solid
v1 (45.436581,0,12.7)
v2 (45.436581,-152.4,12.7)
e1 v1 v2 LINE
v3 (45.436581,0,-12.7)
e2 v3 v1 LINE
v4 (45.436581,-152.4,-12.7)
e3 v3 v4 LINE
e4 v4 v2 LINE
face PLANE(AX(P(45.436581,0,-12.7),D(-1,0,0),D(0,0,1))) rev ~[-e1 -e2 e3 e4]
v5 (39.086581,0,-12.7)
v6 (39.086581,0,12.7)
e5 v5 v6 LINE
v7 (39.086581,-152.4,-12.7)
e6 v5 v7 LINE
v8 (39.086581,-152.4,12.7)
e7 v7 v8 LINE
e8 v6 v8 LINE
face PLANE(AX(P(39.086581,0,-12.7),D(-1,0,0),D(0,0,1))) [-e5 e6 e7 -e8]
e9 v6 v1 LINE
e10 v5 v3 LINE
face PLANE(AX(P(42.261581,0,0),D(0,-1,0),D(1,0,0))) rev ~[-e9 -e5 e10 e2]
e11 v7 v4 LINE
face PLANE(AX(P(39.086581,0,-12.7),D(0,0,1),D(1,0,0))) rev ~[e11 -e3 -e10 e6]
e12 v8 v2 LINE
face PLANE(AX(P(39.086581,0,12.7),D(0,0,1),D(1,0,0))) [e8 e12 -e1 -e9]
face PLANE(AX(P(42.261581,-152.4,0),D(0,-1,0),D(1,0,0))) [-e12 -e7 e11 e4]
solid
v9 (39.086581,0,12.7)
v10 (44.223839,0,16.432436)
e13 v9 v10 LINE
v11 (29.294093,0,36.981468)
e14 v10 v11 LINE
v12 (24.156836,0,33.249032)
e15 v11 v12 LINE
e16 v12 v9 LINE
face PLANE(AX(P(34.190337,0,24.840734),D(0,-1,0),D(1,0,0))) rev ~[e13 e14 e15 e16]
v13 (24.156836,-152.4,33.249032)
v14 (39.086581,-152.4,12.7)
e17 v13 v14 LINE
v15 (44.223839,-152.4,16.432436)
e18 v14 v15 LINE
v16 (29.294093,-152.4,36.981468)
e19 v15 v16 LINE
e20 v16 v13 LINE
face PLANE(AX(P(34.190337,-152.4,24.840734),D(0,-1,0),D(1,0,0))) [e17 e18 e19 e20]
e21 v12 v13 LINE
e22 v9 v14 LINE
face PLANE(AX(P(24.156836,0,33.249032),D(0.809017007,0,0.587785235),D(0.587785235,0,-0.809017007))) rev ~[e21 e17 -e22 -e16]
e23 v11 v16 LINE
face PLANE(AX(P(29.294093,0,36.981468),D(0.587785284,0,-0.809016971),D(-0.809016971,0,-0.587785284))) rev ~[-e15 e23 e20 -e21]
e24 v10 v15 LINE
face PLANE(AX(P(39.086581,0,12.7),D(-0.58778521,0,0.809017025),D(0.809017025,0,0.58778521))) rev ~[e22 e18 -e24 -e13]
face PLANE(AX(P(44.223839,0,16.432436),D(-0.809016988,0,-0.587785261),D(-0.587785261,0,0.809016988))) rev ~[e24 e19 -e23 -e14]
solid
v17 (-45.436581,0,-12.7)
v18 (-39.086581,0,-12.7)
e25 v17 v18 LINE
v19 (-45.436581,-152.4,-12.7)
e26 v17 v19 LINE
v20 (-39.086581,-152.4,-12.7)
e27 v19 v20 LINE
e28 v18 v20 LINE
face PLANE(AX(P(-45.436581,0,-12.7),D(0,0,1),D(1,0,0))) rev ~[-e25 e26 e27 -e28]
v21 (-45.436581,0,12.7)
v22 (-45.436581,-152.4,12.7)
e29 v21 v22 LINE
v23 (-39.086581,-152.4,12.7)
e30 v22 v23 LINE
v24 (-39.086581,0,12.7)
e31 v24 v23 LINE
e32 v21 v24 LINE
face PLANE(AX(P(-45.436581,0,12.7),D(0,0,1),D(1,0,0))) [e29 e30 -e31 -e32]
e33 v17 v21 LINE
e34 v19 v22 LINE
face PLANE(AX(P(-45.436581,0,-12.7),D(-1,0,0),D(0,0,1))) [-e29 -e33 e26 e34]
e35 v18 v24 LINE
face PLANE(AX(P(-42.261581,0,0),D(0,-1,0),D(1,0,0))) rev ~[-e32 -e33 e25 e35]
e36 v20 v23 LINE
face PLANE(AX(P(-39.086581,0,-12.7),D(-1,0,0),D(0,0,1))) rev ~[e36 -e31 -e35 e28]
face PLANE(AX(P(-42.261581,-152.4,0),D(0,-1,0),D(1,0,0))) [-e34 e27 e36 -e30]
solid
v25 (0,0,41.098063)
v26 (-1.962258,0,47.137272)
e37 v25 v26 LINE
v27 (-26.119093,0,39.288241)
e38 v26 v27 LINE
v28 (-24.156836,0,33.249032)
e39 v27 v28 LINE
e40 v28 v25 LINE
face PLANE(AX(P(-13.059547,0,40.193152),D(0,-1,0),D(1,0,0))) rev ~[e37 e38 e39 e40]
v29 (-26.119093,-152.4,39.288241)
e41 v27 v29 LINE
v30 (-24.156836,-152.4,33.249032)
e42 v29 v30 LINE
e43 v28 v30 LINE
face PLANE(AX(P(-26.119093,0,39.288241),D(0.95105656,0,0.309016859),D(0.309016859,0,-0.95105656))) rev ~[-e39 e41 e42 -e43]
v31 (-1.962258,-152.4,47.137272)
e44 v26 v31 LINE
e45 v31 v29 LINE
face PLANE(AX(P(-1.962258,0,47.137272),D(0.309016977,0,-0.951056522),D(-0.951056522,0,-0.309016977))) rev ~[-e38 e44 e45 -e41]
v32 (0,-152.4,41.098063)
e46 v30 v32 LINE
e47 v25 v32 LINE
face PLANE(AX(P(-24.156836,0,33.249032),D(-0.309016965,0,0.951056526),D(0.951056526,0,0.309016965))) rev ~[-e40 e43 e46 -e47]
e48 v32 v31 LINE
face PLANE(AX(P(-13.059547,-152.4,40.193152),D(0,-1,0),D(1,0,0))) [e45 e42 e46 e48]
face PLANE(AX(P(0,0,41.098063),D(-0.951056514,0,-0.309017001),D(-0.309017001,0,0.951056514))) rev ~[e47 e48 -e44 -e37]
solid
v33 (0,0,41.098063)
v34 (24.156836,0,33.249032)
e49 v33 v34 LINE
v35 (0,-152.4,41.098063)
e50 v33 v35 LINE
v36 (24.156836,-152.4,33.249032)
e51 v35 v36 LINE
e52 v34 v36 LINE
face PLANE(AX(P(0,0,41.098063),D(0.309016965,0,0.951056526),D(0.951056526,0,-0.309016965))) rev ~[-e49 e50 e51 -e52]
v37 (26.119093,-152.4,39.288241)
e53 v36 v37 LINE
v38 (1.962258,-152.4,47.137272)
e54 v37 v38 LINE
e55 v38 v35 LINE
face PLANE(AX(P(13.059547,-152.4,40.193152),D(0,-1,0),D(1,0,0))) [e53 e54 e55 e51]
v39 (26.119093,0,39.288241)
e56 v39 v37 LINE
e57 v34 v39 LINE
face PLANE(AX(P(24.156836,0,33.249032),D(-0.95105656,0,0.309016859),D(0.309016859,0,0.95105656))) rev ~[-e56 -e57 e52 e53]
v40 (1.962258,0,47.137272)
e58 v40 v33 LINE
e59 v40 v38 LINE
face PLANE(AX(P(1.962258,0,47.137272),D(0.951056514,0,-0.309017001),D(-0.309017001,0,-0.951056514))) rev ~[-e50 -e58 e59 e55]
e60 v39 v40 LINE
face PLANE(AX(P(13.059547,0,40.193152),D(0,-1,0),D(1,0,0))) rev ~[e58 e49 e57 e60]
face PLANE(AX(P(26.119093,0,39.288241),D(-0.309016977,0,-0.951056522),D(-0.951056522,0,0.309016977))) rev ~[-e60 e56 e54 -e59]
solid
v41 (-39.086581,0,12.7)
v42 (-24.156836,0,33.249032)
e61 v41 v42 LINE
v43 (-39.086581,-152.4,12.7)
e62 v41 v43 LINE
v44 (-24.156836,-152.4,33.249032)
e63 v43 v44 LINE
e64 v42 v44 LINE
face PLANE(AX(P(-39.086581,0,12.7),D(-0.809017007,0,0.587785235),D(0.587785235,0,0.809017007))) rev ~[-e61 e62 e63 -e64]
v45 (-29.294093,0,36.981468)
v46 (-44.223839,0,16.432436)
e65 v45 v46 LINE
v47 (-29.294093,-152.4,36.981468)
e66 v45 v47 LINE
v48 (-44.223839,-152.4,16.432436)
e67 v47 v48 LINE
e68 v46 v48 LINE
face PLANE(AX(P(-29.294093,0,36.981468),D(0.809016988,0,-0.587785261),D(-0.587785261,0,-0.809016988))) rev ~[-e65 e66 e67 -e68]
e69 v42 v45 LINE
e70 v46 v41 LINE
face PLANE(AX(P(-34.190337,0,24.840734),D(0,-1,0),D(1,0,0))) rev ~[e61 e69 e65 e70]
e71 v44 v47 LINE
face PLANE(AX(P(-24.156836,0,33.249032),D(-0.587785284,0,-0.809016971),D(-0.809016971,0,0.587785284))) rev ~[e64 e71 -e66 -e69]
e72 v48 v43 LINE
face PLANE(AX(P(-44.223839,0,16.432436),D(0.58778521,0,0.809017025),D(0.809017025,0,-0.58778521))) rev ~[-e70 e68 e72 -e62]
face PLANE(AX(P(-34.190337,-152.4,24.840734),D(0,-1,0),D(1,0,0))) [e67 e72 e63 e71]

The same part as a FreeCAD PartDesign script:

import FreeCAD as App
import Part
import Sketcher

V = App.Vector
Q = App.Units.Quantity


def add_polygon(sketch, points):
    """Adds a closed chain of lines whose ends are joined by coincident constraints."""
    first, n = sketch.GeometryCount, len(points)
    for a, b in zip(points, points[1:] + points[:1]):
        sketch.addGeometry(Part.LineSegment(App.Vector(*a, 0), App.Vector(*b, 0)), False)
    for i in range(n):
        sketch.addConstraint(Sketcher.Constraint("Coincident", first + i, 2, first + (i + 1) % n, 1))

doc = App.newDocument("Part")
body = doc.addObject("PartDesign::Body", "Body")
body.AllowCompound = True

# Sketch on XZ plane
sketch1 = body.newObject("Sketcher::SketchObject", "Sketch")
sketch1.AttachmentSupport = (doc.getObject("XZ_Plane"), [""])
sketch1.MapMode = "FlatFace"
add_polygon(sketch1, [(-45.436581, 12.7), (-45.436581, -12.7), (-39.086581, -12.7), (-39.086581, 12.7)])  # lines 0-3
add_polygon(sketch1, [(-44.223839, 16.432436), (-39.086581, 12.7), (-24.156836, 33.249032), (-29.294093, 36.981468)])  # lines 4-7
add_polygon(sketch1, [(-26.119093, 39.288241), (-24.156836, 33.249032), (0, 41.098063), (-1.962258, 47.137272)])  # lines 8-11
add_polygon(sketch1, [(1.962258, 47.137272), (0, 41.098063), (24.156836, 33.249032), (26.119093, 39.288241)])  # lines 12-15
add_polygon(sketch1, [(24.156836, 33.249032), (39.086581, 12.7), (44.223839, 16.432436), (29.294093, 36.981468)])  # lines 16-19
add_polygon(sketch1, [(39.086581, 12.7), (39.086581, -12.7), (45.436581, -12.7), (45.436581, 12.7)])  # lines 20-23
sketch1.addConstraint([
    Sketcher.Constraint("Vertical", 0),
    Sketcher.Constraint("Horizontal", 1),
    Sketcher.Constraint("Vertical", 2),
    Sketcher.Constraint("Horizontal", 3),
    Sketcher.Constraint("Vertical", 20),
    Sketcher.Constraint("Horizontal", 21),
    Sketcher.Constraint("Vertical", 22),
    Sketcher.Constraint("Horizontal", 23),
    Sketcher.Constraint("Coincident", 4, 2, 2, 2),
    Sketcher.Constraint("Coincident", 8, 2, 5, 2),
    Sketcher.Constraint("Coincident", 12, 2, 9, 2),
    Sketcher.Constraint("Coincident", 19, 2, 13, 2),
    Sketcher.Constraint("Coincident", 23, 2, 16, 2),
    Sketcher.Constraint("Symmetric", 1, 2, 16, 2, -1, 1),
    Sketcher.Constraint("Symmetric", 3, 2, 21, 2, -1, 1),
    Sketcher.Constraint("Symmetric", 5, 2, 13, 2, -2),
    Sketcher.Constraint("Symmetric", 11, 2, 14, 2, -2),
    Sketcher.Constraint("Symmetric", 10, 2, 15, 2, -2),
    Sketcher.Constraint("Symmetric", 7, 2, 17, 2, -2),
    Sketcher.Constraint("Symmetric", 6, 2, 18, 2, -2),
    Sketcher.Constraint("PointOnObject", 9, 2, -2),
    Sketcher.Constraint("Perpendicular", 4, 5),
    Sketcher.Constraint("Perpendicular", 5, 6),
    Sketcher.Constraint("Perpendicular", 6, 7),
    Sketcher.Constraint("Perpendicular", 8, 9),
    Sketcher.Constraint("Perpendicular", 9, 10),
    Sketcher.Constraint("Perpendicular", 10, 11),
    Sketcher.Constraint("Perpendicular", 16, 17),
    Sketcher.Constraint("Equal", 6, 8),
    Sketcher.Constraint("Equal", 7, 9),
    Sketcher.Constraint("DistanceY", 0, 2, 0, 1, Q("1 in")),
    Sketcher.Constraint("Distance", 5, Q("1 in")),
    Sketcher.Constraint("Angle", 4, Q("-35.999997 deg")),
    Sketcher.Constraint("Angle", 8, Q("-72.000008 deg")),
    Sketcher.Constraint("DistanceX", 1, 1, 1, 2, Q("0.25 in")),
    Sketcher.Constraint("Distance", 4, Q("0.25 in")),
])
pad1 = body.newObject("PartDesign::Pad", "Pad")
pad1.Profile = sketch1
pad1.Length = Q("6 in")

doc.recompute()
